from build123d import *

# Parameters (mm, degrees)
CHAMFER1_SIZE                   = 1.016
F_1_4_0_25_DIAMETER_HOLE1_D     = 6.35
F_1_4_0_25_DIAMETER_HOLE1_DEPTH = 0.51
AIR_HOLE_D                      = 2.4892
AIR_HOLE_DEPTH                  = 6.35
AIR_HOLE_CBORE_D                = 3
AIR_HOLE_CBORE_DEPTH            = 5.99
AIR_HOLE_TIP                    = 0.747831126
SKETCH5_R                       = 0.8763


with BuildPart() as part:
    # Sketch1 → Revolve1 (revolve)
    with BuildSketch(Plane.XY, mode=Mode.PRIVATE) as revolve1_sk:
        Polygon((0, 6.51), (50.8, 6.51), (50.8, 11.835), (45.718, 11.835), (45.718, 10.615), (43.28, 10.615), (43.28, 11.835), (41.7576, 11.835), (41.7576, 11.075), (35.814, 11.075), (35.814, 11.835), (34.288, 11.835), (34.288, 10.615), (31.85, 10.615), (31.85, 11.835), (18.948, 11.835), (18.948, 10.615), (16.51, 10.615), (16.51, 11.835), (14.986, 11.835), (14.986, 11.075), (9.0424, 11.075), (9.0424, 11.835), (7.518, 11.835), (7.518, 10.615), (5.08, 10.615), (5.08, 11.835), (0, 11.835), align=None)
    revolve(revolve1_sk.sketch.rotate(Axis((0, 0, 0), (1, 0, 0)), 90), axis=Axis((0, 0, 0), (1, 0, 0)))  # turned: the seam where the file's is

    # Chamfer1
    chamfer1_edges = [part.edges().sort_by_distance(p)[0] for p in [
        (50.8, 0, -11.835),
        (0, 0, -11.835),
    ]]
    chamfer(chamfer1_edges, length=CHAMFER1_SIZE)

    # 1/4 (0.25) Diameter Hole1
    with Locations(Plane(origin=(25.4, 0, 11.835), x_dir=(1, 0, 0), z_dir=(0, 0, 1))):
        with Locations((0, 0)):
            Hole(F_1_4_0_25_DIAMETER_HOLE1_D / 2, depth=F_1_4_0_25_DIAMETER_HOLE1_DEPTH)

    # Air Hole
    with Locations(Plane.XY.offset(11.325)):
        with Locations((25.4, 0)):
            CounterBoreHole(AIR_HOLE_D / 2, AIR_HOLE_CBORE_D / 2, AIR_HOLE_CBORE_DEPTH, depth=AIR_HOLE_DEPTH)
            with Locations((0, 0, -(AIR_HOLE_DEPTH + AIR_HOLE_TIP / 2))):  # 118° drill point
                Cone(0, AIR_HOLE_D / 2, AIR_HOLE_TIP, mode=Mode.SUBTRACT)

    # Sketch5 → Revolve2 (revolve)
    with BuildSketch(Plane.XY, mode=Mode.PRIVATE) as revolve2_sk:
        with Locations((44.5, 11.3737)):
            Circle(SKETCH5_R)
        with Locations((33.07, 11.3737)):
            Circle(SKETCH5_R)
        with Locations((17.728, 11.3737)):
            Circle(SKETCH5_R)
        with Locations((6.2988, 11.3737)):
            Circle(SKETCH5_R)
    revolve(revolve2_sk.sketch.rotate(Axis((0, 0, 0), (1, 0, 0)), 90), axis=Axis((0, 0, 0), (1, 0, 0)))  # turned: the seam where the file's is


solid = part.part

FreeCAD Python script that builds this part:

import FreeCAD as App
import Part
import Sketcher

V = App.Vector
Q = App.Units.Quantity


def edges_at(feature, points):
    """Names of the edges that pass closest to the given points."""
    edges = feature.Shape.Edges
    near = lambda p: min(range(len(edges)), key=lambda i: edges[i].distToShape(Part.Vertex(*p))[0])
    return sorted({f"Edge{near(p) + 1}" for p in points})


def add_polygon(sketch, points):
    """Adds a closed chain of lines whose ends are joined by coincident constraints."""
    first, n = sketch.GeometryCount, len(points)
    for a, b in zip(points, points[1:] + points[:1]):
        sketch.addGeometry(Part.LineSegment(App.Vector(*a, 0), App.Vector(*b, 0)), False)
    for i in range(n):
        sketch.addConstraint(Sketcher.Constraint("Coincident", first + i, 2, first + (i + 1) % n, 1))

doc = App.newDocument("Part")
body = doc.addObject("PartDesign::Body", "Body")

# Sketch on XY plane
sketch1 = body.newObject("Sketcher::SketchObject", "Sketch")
sketch1.AttachmentSupport = (doc.getObject("XY_Plane"), [""])
sketch1.MapMode = "FlatFace"
add_polygon(sketch1, [(0, 6.5), (50.8, 6.5), (50.8, 11.8), (45.7, 11.8), (45.7, 10.6), (43.3, 10.6), (43.3, 11.8), (41.8, 11.8), (41.8, 11.1), (35.8, 11.1), (35.8, 11.8), (34.3, 11.8), (34.3, 10.6), (31.9, 10.6), (31.9, 11.8), (18.9, 11.8), (18.9, 10.6), (16.5, 10.6), (16.5, 11.8), (15, 11.8), (15, 11.1), (9, 11.1), (9, 11.8), (7.5, 11.8), (7.5, 10.6), (5.1, 10.6), (5.1, 11.8), (0, 11.8)])  # lines 0-27
sketch1.addConstraint([
    Sketcher.Constraint("Horizontal", 0),
    Sketcher.Constraint("Vertical", 1),
    Sketcher.Constraint("Horizontal", 2),
    Sketcher.Constraint("Vertical", 3),
    Sketcher.Constraint("Horizontal", 4),
    Sketcher.Constraint("Vertical", 5),
    Sketcher.Constraint("Horizontal", 6),
    Sketcher.Constraint("Vertical", 7),
    Sketcher.Constraint("Horizontal", 8),
    Sketcher.Constraint("Vertical", 9),
    Sketcher.Constraint("Horizontal", 10),
    Sketcher.Constraint("Vertical", 11),
    Sketcher.Constraint("Horizontal", 12),
    Sketcher.Constraint("Vertical", 13),
    Sketcher.Constraint("Horizontal", 14),
    Sketcher.Constraint("Vertical", 15),
    Sketcher.Constraint("Horizontal", 16),
    Sketcher.Constraint("Vertical", 17),
    Sketcher.Constraint("Horizontal", 18),
    Sketcher.Constraint("Vertical", 19),
    Sketcher.Constraint("Horizontal", 20),
    Sketcher.Constraint("Vertical", 21),
    Sketcher.Constraint("Horizontal", 22),
    Sketcher.Constraint("Vertical", 23),
    Sketcher.Constraint("Horizontal", 24),
    Sketcher.Constraint("Vertical", 25),
    Sketcher.Constraint("Horizontal", 26),
    Sketcher.Constraint("Vertical", 27),
    Sketcher.Constraint("PointOnObject", 26, 2, -2),
    Sketcher.Constraint("Horizontal", 2, 2, 5, 2),
    Sketcher.Constraint("Horizontal", 6, 2, 9, 2),
    Sketcher.Constraint("Horizontal", 4, 2, 11, 2),
    Sketcher.Constraint("Horizontal", 10, 2, 13, 2),
    Sketcher.Constraint("Horizontal", 12, 2, 15, 2),
    Sketcher.Constraint("Horizontal", 14, 2, 17, 2),
    Sketcher.Constraint("Horizontal", 8, 2, 19, 2),
    Sketcher.Constraint("Horizontal", 18, 2, 21, 2),
    Sketcher.Constraint("Horizontal", 16, 2, 23, 2),
    Sketcher.Constraint("Horizontal", 22, 2, 25, 2),
    Sketcher.Constraint("Equal", 4, 12),
    Sketcher.Constraint("Equal", 12, 16),
    Sketcher.Constraint("Equal", 8, 20),
    Sketcher.Constraint("Equal", 16, 24),
    Sketcher.Constraint("DistanceX", 0, 1, 0, 2, Q("2 in")),
    Sketcher.Constraint("DistanceX", 26, 2, 26, 1, Q("0.2 in")),
    Sketcher.Constraint("DistanceX", 18, 2, 18, 1, Q("0.06 in")),
    Sketcher.Constraint("DistanceX", 8, 2, 8, 1, Q("0.234 in")),
    Sketcher.Constraint("DistanceX", -1, 1, 8, 2, Q("1.41 in")),
    Sketcher.Constraint("DistanceX", -1, 1, 16, 2, Q("0.65 in")),
    Sketcher.Constraint("DistanceX", 2, 2, 2, 1, 5.082),
    Sketcher.Constraint("DistanceX", 4, 2, 4, 1, 2.438),
    Sketcher.Constraint("DistanceX", 10, 2, 10, 1, 1.526),
    Sketcher.Constraint("DistanceY", 1, 1, 1, 2, 5.325),
    Sketcher.Constraint("DistanceY", 3, 2, 3, 1, 1.22),
    Sketcher.Constraint("DistanceY", 7, 2, 7, 1, 0.76),
    Sketcher.Constraint("DistanceY", -1, 1, 0, 2, 6.51),
])
revolution = body.newObject("PartDesign::Revolution", "Revolution")
revolution.Profile = sketch1
revolution.ReferenceAxis = (sketch1, ["H_Axis"])
revolution.Angle = 360
doc.recompute()

chamfer = body.newObject("PartDesign::Chamfer", "Chamfer")
chamfer.Base = (revolution, edges_at(revolution, [(50.8, 0, -11.835), (0, 0, -11.835)]))
chamfer.Size = Q("0.04 in")

# Sketch on XY plane
sketch2 = body.newObject("Sketcher::SketchObject", "Sketch001")
sketch2.AttachmentSupport = (doc.getObject("XY_Plane"), [""])
sketch2.MapMode = "FlatFace"
sketch2.AttachmentOffset = App.Placement(V(0, 0, 11.835), App.Rotation())
sketch2.addGeometry(Part.Circle(V(25.4, 0, 0), V(0, 0, 1), 3.2), False)
sketch2.addConstraint([
    Sketcher.Constraint("PointOnObject", 0, 3, -1),
    Sketcher.Constraint("Diameter", 0, Q("0.25 in")),
    Sketcher.Constraint("DistanceX", -1, 1, 0, 3, Q("1 in")),
])
doc.recompute()
hole = body.newObject("PartDesign::Hole", "Hole")
hole.Profile = sketch2
hole.ThreadType = "None"
hole.Diameter = Q("0.25 in")
hole.DepthType = "Dimension"
hole.Depth = 0.51
hole.DrillPoint = "Flat"

# Sketch on XY plane
sketch3 = body.newObject("Sketcher::SketchObject", "Sketch002")
sketch3.AttachmentSupport = (doc.getObject("XY_Plane"), [""])
sketch3.MapMode = "FlatFace"
sketch3.AttachmentOffset = App.Placement(V(0, 0, 11.325), App.Rotation())
sketch3.addGeometry(Part.Circle(V(25.4, 0, 0), V(0, 0, 1), 1.2), False)
sketch3.addConstraint([
    Sketcher.Constraint("PointOnObject", 0, 3, -1),
    Sketcher.Constraint("Diameter", 0, Q("0.098 in")),
    Sketcher.Constraint("DistanceX", -1, 1, 0, 3, Q("1 in")),
])
doc.recompute()
hole2 = body.newObject("PartDesign::Hole", "Hole001")
hole2.Profile = sketch3
hole2.ThreadType = "None"
hole2.Diameter = Q("0.098 in")
hole2.DepthType = "Dimension"
hole2.Depth = Q("0.25 in")
hole2.DrillPoint = "Angled"
hole2.DrillPointAngle = 118
hole2.HoleCutType = "Counterbore"
hole2.HoleCutDiameter = 3
hole2.HoleCutDepth = 5.99

# Sketch on XY plane
sketch4 = body.newObject("Sketcher::SketchObject", "Sketch003")
sketch4.AttachmentSupport = (doc.getObject("XY_Plane"), [""])
sketch4.MapMode = "FlatFace"
sketch4.addGeometry([
    Part.Circle(V(44.5, 11.4, 0), V(0, 0, 1), 0.9),
    Part.Circle(V(33.1, 11.4, 0), V(0, 0, 1), 0.9),
    Part.Circle(V(17.7, 11.4, 0), V(0, 0, 1), 0.9),
    Part.Circle(V(6.3, 11.4, 0), V(0, 0, 1), 0.9),
], False)
sketch4.addConstraint([
    Sketcher.Constraint("Equal", 0, 1),
    Sketcher.Constraint("Equal", 1, 2),
    Sketcher.Constraint("Equal", 2, 3),
    Sketcher.Constraint("Horizontal", 0, 3, 1, 3),
    Sketcher.Constraint("Horizontal", 1, 3, 2, 3),
    Sketcher.Constraint("Horizontal", 2, 3, 3, 3),
    Sketcher.Constraint("Diameter", 0, Q("0.069 in")),
    Sketcher.Constraint("DistanceX", 1, 3, 0, 3, Q("0.45 in")),
    Sketcher.Constraint("DistanceX", -1, 1, 0, 3, 44.5),
    Sketcher.Constraint("DistanceY", -1, 1, 0, 3, 11.3737),
    Sketcher.Constraint("DistanceX", -1, 1, 2, 3, 17.728),
    Sketcher.Constraint("DistanceX", -1, 1, 3, 3, 6.2988),
])
revolution2 = body.newObject("PartDesign::Revolution", "Revolution001")
revolution2.Profile = sketch4
revolution2.ReferenceAxis = (sketch4, ["H_Axis"])
revolution2.Angle = 360

doc.recompute()
